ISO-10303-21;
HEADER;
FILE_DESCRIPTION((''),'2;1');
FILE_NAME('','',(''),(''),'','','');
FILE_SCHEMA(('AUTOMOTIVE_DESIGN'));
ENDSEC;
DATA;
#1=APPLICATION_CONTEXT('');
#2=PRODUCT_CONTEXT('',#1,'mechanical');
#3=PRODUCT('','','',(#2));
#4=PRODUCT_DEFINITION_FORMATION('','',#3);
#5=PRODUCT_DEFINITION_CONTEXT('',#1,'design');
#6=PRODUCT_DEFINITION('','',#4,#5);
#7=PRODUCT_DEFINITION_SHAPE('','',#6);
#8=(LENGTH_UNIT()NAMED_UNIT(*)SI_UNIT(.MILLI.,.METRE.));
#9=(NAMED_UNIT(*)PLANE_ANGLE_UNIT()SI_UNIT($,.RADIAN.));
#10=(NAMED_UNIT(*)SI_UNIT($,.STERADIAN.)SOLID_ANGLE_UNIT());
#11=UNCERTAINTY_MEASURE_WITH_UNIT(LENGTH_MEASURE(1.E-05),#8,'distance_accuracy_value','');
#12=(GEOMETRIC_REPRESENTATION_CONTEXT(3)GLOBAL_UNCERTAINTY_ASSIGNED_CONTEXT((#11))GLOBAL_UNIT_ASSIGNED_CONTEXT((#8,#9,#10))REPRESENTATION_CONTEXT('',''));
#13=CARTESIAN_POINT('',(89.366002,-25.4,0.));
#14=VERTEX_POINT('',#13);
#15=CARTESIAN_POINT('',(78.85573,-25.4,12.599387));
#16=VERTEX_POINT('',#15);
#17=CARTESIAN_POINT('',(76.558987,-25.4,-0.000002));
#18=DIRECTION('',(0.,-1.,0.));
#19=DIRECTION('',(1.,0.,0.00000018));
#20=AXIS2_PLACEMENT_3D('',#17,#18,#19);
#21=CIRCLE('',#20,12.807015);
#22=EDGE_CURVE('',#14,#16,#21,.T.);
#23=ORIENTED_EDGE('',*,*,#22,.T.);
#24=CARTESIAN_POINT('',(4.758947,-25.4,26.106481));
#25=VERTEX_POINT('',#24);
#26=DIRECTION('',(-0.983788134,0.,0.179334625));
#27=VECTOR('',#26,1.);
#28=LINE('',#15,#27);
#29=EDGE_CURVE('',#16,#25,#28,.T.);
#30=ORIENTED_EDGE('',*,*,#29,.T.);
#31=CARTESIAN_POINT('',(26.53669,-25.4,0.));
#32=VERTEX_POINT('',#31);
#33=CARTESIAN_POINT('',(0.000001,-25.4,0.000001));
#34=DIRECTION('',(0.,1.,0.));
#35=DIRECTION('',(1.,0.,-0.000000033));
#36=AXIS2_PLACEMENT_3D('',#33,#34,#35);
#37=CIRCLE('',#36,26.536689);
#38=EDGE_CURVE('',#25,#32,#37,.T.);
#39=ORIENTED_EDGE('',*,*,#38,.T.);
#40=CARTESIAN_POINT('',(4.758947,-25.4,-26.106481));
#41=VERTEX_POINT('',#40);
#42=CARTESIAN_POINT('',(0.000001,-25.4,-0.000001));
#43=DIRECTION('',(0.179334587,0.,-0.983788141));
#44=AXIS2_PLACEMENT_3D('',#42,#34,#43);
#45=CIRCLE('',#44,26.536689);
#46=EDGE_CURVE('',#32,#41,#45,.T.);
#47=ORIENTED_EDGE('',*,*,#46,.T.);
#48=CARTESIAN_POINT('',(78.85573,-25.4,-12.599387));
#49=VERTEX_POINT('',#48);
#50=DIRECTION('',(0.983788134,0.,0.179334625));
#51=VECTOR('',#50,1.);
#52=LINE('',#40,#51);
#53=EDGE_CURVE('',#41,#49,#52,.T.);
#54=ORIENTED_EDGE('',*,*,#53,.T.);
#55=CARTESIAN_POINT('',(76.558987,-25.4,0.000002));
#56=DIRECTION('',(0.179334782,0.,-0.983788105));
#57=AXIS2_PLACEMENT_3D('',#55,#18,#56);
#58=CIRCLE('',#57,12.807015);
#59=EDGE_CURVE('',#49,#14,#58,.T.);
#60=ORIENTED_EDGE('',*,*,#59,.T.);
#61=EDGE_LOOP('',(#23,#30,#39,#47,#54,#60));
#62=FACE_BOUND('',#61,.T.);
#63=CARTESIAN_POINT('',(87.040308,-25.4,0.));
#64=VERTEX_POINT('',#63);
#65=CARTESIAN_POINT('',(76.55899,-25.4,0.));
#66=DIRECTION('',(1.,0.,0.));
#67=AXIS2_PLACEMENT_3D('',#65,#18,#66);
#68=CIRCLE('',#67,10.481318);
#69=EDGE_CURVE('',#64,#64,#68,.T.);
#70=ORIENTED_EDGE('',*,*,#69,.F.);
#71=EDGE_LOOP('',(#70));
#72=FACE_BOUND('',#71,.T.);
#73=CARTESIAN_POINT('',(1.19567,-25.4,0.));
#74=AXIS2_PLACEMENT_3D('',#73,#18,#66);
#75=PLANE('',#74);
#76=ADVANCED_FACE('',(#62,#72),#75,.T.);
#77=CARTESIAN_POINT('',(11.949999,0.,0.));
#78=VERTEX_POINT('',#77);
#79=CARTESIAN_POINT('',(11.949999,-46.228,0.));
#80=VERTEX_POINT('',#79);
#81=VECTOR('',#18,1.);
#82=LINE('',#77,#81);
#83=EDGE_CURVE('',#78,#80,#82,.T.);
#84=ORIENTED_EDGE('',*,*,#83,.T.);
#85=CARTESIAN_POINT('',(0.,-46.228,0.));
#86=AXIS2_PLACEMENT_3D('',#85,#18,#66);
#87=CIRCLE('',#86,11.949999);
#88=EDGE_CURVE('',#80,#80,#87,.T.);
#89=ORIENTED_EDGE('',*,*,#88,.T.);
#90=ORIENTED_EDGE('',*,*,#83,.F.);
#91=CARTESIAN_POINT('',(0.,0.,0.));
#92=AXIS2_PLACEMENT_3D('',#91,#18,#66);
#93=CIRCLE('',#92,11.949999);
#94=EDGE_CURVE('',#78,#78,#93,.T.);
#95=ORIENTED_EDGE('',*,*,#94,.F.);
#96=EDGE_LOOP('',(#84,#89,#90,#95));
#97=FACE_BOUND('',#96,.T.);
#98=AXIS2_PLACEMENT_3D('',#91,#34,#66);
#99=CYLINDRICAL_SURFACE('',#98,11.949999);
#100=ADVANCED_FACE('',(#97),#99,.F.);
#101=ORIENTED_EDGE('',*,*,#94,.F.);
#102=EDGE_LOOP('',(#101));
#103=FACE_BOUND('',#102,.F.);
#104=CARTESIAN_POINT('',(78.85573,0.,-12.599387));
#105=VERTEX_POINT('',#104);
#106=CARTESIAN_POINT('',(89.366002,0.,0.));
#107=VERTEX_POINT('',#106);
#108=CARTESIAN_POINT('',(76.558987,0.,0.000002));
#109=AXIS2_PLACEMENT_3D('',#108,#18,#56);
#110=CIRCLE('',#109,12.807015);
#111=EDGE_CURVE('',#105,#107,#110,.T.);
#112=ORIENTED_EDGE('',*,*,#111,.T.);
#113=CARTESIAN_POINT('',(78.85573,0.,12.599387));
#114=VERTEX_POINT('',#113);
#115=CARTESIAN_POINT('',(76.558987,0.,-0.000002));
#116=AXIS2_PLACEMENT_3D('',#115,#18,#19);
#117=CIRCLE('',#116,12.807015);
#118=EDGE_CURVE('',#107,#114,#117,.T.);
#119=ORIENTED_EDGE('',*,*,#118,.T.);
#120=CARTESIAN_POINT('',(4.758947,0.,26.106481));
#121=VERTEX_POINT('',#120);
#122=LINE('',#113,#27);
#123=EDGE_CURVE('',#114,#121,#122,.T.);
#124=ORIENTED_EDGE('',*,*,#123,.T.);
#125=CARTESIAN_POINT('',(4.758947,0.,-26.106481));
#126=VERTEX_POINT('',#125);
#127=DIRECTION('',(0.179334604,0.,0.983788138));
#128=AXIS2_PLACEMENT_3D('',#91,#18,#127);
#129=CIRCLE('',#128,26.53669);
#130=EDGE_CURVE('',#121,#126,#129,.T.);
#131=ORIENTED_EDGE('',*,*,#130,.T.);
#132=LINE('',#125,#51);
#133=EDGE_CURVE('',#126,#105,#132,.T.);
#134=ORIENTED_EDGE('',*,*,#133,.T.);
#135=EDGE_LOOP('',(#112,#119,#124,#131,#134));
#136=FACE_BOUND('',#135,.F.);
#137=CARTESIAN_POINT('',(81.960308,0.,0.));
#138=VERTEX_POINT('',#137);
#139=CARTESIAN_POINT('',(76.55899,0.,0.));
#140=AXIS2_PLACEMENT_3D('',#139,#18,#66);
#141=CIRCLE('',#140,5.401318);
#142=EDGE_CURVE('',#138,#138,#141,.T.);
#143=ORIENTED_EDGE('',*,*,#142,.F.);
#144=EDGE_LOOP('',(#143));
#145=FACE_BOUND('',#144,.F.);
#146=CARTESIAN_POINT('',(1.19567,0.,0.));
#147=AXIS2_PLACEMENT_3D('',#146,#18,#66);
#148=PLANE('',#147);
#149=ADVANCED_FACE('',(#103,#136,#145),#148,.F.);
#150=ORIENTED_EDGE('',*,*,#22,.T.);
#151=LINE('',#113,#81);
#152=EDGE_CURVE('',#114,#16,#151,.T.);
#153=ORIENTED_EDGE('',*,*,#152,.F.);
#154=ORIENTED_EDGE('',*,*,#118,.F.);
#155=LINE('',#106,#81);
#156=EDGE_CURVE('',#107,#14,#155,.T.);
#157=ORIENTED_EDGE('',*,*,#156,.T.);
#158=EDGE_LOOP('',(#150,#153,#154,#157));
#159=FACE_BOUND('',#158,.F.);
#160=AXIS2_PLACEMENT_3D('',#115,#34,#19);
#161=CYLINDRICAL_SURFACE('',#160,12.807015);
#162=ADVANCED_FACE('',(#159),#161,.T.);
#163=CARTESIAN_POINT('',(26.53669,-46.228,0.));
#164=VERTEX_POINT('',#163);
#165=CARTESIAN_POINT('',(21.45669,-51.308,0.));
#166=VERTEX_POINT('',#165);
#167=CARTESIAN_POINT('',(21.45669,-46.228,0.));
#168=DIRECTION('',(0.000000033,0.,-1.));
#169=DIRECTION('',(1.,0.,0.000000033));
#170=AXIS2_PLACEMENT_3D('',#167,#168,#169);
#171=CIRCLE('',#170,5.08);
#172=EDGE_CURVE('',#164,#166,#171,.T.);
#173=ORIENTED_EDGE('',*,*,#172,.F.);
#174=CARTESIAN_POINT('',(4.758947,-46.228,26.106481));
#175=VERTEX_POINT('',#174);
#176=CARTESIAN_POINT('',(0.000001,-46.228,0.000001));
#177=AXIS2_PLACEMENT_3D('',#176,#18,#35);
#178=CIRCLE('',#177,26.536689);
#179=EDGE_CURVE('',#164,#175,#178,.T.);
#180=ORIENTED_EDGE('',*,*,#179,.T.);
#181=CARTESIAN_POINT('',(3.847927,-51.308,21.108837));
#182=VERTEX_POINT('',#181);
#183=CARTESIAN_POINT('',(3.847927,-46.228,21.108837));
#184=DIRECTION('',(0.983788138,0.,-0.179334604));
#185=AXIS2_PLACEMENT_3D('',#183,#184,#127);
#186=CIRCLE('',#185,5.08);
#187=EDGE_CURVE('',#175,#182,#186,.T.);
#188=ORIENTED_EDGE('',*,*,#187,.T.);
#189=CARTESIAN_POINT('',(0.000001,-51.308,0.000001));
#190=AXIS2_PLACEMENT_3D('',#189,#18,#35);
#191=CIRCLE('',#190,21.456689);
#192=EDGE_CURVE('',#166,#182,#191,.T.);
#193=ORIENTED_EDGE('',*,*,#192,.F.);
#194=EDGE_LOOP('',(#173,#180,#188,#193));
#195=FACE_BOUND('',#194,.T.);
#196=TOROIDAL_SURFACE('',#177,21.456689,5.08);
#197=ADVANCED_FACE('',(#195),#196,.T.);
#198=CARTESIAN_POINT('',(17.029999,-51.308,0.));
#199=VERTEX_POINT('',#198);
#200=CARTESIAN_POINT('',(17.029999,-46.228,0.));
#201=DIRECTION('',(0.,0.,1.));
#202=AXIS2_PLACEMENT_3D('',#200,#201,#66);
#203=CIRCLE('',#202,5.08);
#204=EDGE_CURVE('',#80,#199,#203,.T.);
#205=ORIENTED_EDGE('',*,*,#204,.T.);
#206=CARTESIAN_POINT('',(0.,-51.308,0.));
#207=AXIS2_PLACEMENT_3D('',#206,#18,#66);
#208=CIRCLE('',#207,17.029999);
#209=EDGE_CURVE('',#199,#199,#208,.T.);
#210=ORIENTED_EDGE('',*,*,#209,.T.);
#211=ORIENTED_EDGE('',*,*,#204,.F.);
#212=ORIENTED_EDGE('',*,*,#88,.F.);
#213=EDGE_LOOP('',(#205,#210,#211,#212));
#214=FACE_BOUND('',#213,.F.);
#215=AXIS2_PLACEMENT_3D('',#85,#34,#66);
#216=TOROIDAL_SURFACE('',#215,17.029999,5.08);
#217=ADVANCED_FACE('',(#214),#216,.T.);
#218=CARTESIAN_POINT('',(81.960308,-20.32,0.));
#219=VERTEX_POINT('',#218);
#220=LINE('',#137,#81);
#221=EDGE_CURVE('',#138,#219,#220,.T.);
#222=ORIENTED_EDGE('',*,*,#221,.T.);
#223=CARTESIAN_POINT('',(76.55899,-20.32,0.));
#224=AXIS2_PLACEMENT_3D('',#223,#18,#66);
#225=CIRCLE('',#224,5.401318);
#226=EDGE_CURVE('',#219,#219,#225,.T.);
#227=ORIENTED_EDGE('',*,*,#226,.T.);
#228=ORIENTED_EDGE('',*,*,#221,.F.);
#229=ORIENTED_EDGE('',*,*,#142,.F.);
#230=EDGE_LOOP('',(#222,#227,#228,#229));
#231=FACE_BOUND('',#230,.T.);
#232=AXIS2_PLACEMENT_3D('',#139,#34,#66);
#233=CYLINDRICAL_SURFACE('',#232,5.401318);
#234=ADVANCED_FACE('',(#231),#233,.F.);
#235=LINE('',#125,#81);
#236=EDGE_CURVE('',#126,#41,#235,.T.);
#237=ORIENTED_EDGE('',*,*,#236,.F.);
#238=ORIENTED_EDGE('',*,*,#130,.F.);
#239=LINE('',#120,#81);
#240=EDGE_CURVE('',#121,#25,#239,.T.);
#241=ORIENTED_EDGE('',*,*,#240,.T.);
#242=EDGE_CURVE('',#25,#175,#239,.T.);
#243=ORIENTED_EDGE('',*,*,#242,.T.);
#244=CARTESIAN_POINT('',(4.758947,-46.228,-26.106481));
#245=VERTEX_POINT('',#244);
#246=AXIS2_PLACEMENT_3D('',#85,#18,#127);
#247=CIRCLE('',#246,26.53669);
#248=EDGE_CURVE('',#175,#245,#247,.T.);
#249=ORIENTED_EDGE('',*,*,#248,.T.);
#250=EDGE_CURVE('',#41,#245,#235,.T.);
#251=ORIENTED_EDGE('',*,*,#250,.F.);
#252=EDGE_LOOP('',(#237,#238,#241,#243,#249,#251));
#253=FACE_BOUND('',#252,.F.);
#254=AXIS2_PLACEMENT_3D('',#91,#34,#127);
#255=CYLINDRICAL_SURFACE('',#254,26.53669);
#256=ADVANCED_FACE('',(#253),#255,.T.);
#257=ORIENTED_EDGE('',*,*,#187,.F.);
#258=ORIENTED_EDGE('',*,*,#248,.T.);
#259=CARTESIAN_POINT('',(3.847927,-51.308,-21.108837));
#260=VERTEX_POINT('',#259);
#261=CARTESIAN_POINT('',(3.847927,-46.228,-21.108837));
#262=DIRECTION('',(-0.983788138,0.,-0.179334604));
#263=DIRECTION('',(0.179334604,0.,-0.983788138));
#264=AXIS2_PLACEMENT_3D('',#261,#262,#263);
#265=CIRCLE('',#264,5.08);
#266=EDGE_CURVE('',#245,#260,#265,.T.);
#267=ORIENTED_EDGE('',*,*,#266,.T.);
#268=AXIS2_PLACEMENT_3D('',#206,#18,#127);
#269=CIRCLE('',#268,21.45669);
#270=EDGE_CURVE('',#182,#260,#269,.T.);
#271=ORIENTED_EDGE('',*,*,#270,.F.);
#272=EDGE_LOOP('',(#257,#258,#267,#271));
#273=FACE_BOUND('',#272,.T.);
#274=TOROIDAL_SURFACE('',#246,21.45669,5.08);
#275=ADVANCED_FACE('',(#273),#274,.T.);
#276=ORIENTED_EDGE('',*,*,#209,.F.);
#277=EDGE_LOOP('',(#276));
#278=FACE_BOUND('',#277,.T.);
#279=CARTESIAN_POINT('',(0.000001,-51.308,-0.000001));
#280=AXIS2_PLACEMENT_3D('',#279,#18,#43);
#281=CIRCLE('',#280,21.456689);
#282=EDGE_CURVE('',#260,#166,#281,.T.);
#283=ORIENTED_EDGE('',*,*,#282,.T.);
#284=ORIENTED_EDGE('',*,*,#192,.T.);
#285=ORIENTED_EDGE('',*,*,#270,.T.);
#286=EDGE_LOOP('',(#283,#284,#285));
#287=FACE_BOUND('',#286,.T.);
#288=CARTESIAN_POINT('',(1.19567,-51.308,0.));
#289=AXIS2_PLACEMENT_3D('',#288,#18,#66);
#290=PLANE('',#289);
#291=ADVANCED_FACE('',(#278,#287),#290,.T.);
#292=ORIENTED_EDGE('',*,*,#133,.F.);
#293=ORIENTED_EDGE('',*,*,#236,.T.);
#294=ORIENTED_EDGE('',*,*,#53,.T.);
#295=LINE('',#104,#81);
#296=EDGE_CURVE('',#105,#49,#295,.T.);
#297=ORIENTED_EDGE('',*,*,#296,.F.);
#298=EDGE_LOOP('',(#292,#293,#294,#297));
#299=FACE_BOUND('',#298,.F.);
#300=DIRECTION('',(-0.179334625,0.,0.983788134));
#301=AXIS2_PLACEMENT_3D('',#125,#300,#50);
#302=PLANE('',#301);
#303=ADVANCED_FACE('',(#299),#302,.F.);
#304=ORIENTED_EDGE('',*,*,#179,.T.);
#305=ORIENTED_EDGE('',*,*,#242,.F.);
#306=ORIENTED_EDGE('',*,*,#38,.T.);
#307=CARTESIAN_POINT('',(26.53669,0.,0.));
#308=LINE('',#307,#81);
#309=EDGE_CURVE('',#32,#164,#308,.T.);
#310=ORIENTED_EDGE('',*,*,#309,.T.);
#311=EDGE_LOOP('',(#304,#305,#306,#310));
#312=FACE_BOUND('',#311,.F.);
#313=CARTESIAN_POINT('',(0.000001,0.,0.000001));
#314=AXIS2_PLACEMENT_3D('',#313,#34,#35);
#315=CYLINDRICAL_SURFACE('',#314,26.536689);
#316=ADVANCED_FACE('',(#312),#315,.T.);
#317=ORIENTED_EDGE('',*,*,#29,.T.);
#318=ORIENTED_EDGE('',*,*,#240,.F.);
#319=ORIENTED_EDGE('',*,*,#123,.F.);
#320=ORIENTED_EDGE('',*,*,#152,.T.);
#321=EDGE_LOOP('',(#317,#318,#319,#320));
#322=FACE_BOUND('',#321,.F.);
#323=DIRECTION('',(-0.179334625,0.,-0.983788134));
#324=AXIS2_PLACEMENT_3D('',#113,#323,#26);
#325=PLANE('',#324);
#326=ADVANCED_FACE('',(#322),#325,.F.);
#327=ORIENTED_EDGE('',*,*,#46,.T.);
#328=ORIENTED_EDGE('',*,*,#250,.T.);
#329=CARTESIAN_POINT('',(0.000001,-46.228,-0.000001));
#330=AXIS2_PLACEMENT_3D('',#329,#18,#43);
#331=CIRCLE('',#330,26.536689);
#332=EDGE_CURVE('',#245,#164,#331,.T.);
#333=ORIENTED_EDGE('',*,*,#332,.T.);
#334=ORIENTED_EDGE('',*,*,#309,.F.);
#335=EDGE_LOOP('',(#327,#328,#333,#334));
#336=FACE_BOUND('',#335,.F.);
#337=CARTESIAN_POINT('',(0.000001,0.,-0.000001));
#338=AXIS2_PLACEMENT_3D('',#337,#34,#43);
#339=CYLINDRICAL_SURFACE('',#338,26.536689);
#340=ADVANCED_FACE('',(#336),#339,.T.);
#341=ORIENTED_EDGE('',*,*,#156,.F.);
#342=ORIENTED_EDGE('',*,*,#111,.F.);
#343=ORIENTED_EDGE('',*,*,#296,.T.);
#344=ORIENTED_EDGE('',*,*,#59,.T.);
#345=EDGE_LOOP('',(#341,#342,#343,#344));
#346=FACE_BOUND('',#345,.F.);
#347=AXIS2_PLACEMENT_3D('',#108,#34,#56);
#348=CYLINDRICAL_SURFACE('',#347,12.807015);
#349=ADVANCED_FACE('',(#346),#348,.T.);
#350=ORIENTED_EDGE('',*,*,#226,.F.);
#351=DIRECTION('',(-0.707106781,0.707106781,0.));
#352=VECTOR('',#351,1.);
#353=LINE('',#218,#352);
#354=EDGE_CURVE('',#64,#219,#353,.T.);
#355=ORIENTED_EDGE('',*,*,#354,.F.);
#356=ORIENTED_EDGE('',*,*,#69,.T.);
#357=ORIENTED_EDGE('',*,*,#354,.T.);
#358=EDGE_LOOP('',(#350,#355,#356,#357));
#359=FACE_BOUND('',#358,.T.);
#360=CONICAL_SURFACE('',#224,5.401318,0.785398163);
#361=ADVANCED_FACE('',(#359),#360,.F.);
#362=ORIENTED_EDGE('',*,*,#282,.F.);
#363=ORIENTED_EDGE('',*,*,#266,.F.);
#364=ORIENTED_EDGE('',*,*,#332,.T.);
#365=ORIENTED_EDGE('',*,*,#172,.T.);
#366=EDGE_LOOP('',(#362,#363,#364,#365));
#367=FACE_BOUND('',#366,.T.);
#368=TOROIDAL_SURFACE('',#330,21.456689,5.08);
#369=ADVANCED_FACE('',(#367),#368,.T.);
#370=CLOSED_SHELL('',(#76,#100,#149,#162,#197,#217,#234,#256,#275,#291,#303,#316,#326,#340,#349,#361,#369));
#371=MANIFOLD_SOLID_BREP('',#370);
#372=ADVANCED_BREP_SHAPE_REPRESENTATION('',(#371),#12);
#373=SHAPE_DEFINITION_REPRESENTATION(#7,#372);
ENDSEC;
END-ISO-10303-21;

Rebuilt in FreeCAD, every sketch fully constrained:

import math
import FreeCAD as App
import Part
import Sketcher


def edges_at(feature, points):
    """Names of the edges that pass closest to the given points."""
    edges = feature.Shape.Edges
    near = lambda p: min(range(len(edges)), key=lambda i: edges[i].distToShape(Part.Vertex(*p))[0])
    return sorted({f"Edge{near(p) + 1}" for p in points})

doc = App.newDocument("Part")
params = doc.addObject("Spreadsheet::Sheet", "Params")
for row, (alias, value) in enumerate([
    ("pad1_length", "1 in"),
    ("pad2_length", "2.02 in"),
    ("fillet_radius", "0.2 in"),
    ("chamfer_size", "0.2 in"),
], start=1):
    params.set(f"A{row}", alias)
    params.set(f"B{row}", "=" + value)
    params.setAlias(f"B{row}", alias)

body = doc.addObject("PartDesign::Body", "Body")

# Sketch on XZ plane
sketch1 = body.newObject("Sketcher::SketchObject", "Sketch")
sketch1.AttachmentSupport = (doc.getObject("XZ_Plane"), [""])
sketch1.MapMode = "FlatFace"
sketch1.addGeometry([
    Part.ArcOfCircle(Part.Circle(App.Vector(0, 0, 0), App.Vector(0, 0, 1), 27), math.radians(80), math.radians(280)),  # 0
    Part.LineSegment(App.Vector(5, -26, 0), App.Vector(79, -13, 0)),  # 1
    Part.ArcOfCircle(Part.Circle(App.Vector(77, 0, 0), App.Vector(0, 0, 1), 13), math.radians(-80), math.radians(0)),  # 2
    Part.ArcOfCircle(Part.Circle(App.Vector(77, 0, 0), App.Vector(0, 0, 1), 13), math.radians(0), math.radians(80)),  # 3
    Part.LineSegment(App.Vector(79, 13, 0), App.Vector(5, 26, 0)),  # 4
    Part.Circle(App.Vector(77, 0, 0), App.Vector(0, 0, 1), 5),  # 5
    Part.Circle(App.Vector(0, 0, 0), App.Vector(0, 0, 1), 12),  # 6
], False)
sketch1.addConstraint([
    Sketcher.Constraint("Tangent", 0, 2, 1, 1),
    Sketcher.Constraint("Tangent", 1, 2, 2, 1),
    Sketcher.Constraint("Tangent", 2, 2, 3, 1),
    Sketcher.Constraint("Tangent", 3, 2, 4, 1),
    Sketcher.Constraint("Tangent", 4, 2, 0, 1),
    Sketcher.Constraint("Coincident", 0, 3, -1, 1),
    Sketcher.Constraint("Coincident", 6, 3, -1, 1),
    Sketcher.Constraint("Coincident", 5, 3, 2, 3),
    Sketcher.Constraint("Equal", 2, 3),
    Sketcher.Constraint("PointOnObject", 5, 3, -1),
    Sketcher.Constraint("PointOnObject", 2, 2, -1),
    Sketcher.Constraint("Diameter", 6, 23.899998),
    Sketcher.Constraint("Radius", 0, 26.53669),
    Sketcher.Constraint("Diameter", 5, 10.802636),
    Sketcher.Constraint("Radius", 2, 12.807015),
    Sketcher.Constraint("DistanceX", -1, 1, 2, 2, 89.366002),
])
pad1 = body.newObject("PartDesign::Pad", "Pad")
pad1.Profile = sketch1
pad1.setExpression("Length", "Params.pad1_length")

# Sketch on XZ plane
sketch2 = body.newObject("Sketcher::SketchObject", "Sketch001")
sketch2.AttachmentSupport = (doc.getObject("XZ_Plane"), [""])
sketch2.MapMode = "FlatFace"
sketch2.addGeometry([
    Part.ArcOfCircle(Part.Circle(App.Vector(0, 0, 0), App.Vector(0, 0, 1), 27), math.radians(-80), math.radians(0)),
    Part.ArcOfCircle(Part.Circle(App.Vector(0, 0, 0), App.Vector(0, 0, 1), 27), math.radians(0), math.radians(80)),
    Part.ArcOfCircle(Part.Circle(App.Vector(0, 0, 0), App.Vector(0, 0, 1), 27), math.radians(80), math.radians(280)),
    Part.Circle(App.Vector(0, 0, 0), App.Vector(0, 0, 1), 12),
], False)
sketch2.addConstraint([
    Sketcher.Constraint("Tangent", 0, 2, 1, 1),
    Sketcher.Constraint("Tangent", 1, 2, 2, 1),
    Sketcher.Constraint("Tangent", 2, 2, 0, 1),
    Sketcher.Constraint("Coincident", 0, 3, -1, 1),
    Sketcher.Constraint("Coincident", 3, 3, -1, 1),
    Sketcher.Constraint("PointOnObject", 0, 2, -1),
    Sketcher.Constraint("Vertical", 1, 2, 2, 2),
    Sketcher.Constraint("Diameter", 3, 23.899998),
    Sketcher.Constraint("Radius", 0, 26.536689),
    Sketcher.Constraint("DistanceY", -1, 1, 1, 2, 26.106481),
])
pad2 = body.newObject("PartDesign::Pad", "Pad001")
pad2.Profile = sketch2
pad2.setExpression("Length", "Params.pad2_length")
doc.recompute()

fillet = body.newObject("PartDesign::Fillet", "Fillet")
fillet.Base = (pad2, edges_at(pad2, [(-26.537, -51.308, 0), (-11.95, -51.308, 0)]))
fillet.setExpression("Radius", "Params.fillet_radius")
doc.recompute()

chamfer = body.newObject("PartDesign::Chamfer", "Chamfer")
chamfer.Base = (fillet, edges_at(fillet, [(71.158, -25.4, 0)]))
chamfer.setExpression("Size", "Params.chamfer_size")

doc.recompute()
